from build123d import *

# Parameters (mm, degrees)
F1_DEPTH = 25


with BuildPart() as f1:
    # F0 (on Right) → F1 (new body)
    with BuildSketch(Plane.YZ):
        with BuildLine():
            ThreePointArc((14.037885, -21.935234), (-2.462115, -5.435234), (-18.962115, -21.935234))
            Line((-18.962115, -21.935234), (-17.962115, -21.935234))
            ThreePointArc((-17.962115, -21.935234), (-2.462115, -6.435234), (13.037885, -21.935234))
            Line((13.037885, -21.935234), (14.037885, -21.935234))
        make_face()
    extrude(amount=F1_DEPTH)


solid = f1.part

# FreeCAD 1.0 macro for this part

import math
import FreeCAD as App
import Part
import Sketcher
Q = App.Units.Quantity

doc = App.newDocument("Part")
body = doc.addObject("PartDesign::Body", "Body")

# Sketch on YZ plane
sketch1 = doc.addObject("Sketcher::SketchObject", "Sketch")
body.addObject(sketch1)
sketch1.AttachmentSupport = (doc.YZ_Plane, [""])
sketch1.MapMode = "FlatFace"
sketch1.addGeometry(Part.ArcOfCircle(Part.Circle(App.Vector(-2.5, -21.9, 0), App.Vector(0, 0, 1), 16.5), math.radians(0), math.radians(180)), False)
sketch1.addGeometry(Part.LineSegment(App.Vector(-19, -21.9, 0), App.Vector(-18, -21.9, 0)), False)
sketch1.addGeometry(Part.ArcOfCircle(Part.Circle(App.Vector(-2.5, -21.9, 0), App.Vector(0, 0, 1), 15.5), math.radians(0), math.radians(180)), False)
sketch1.addGeometry(Part.LineSegment(App.Vector(13, -21.9, 0), App.Vector(14, -21.9, 0)), False)
sketch1.addConstraint(Sketcher.Constraint("Coincident", 0, 2, 1, 1))
sketch1.addConstraint(Sketcher.Constraint("Coincident", 1, 2, 2, 2))
sketch1.addConstraint(Sketcher.Constraint("Coincident", 2, 1, 3, 1))
sketch1.addConstraint(Sketcher.Constraint("Coincident", 3, 2, 0, 1))
sketch1.addConstraint(Sketcher.Constraint("Horizontal", 1))
sketch1.addConstraint(Sketcher.Constraint("Horizontal", 3))
sketch1.addConstraint(Sketcher.Constraint("Coincident", 2, 3, 0, 3))
sketch1.addConstraint(Sketcher.Constraint("Horizontal", 2, 3, 0, 2))
sketch1.addConstraint(Sketcher.Constraint("Horizontal", 1, 2, 2, 1))
sketch1.addConstraint(Sketcher.Constraint("Radius", 0, Q("16.5 mm")))
sketch1.addConstraint(Sketcher.Constraint("Radius", 2, Q("15.5 mm")))
sketch1.addConstraint(Sketcher.Constraint("DistanceX", 0, 3, -1, 1, Q("2.462115 mm")))
sketch1.addConstraint(Sketcher.Constraint("DistanceY", 0, 3, -1, 1, Q("21.935234 mm")))
pad1 = doc.addObject("PartDesign::Pad", "Pad")
body.addObject(pad1)
pad1.Profile = sketch1
pad1.Length = 25

doc.recompute()
